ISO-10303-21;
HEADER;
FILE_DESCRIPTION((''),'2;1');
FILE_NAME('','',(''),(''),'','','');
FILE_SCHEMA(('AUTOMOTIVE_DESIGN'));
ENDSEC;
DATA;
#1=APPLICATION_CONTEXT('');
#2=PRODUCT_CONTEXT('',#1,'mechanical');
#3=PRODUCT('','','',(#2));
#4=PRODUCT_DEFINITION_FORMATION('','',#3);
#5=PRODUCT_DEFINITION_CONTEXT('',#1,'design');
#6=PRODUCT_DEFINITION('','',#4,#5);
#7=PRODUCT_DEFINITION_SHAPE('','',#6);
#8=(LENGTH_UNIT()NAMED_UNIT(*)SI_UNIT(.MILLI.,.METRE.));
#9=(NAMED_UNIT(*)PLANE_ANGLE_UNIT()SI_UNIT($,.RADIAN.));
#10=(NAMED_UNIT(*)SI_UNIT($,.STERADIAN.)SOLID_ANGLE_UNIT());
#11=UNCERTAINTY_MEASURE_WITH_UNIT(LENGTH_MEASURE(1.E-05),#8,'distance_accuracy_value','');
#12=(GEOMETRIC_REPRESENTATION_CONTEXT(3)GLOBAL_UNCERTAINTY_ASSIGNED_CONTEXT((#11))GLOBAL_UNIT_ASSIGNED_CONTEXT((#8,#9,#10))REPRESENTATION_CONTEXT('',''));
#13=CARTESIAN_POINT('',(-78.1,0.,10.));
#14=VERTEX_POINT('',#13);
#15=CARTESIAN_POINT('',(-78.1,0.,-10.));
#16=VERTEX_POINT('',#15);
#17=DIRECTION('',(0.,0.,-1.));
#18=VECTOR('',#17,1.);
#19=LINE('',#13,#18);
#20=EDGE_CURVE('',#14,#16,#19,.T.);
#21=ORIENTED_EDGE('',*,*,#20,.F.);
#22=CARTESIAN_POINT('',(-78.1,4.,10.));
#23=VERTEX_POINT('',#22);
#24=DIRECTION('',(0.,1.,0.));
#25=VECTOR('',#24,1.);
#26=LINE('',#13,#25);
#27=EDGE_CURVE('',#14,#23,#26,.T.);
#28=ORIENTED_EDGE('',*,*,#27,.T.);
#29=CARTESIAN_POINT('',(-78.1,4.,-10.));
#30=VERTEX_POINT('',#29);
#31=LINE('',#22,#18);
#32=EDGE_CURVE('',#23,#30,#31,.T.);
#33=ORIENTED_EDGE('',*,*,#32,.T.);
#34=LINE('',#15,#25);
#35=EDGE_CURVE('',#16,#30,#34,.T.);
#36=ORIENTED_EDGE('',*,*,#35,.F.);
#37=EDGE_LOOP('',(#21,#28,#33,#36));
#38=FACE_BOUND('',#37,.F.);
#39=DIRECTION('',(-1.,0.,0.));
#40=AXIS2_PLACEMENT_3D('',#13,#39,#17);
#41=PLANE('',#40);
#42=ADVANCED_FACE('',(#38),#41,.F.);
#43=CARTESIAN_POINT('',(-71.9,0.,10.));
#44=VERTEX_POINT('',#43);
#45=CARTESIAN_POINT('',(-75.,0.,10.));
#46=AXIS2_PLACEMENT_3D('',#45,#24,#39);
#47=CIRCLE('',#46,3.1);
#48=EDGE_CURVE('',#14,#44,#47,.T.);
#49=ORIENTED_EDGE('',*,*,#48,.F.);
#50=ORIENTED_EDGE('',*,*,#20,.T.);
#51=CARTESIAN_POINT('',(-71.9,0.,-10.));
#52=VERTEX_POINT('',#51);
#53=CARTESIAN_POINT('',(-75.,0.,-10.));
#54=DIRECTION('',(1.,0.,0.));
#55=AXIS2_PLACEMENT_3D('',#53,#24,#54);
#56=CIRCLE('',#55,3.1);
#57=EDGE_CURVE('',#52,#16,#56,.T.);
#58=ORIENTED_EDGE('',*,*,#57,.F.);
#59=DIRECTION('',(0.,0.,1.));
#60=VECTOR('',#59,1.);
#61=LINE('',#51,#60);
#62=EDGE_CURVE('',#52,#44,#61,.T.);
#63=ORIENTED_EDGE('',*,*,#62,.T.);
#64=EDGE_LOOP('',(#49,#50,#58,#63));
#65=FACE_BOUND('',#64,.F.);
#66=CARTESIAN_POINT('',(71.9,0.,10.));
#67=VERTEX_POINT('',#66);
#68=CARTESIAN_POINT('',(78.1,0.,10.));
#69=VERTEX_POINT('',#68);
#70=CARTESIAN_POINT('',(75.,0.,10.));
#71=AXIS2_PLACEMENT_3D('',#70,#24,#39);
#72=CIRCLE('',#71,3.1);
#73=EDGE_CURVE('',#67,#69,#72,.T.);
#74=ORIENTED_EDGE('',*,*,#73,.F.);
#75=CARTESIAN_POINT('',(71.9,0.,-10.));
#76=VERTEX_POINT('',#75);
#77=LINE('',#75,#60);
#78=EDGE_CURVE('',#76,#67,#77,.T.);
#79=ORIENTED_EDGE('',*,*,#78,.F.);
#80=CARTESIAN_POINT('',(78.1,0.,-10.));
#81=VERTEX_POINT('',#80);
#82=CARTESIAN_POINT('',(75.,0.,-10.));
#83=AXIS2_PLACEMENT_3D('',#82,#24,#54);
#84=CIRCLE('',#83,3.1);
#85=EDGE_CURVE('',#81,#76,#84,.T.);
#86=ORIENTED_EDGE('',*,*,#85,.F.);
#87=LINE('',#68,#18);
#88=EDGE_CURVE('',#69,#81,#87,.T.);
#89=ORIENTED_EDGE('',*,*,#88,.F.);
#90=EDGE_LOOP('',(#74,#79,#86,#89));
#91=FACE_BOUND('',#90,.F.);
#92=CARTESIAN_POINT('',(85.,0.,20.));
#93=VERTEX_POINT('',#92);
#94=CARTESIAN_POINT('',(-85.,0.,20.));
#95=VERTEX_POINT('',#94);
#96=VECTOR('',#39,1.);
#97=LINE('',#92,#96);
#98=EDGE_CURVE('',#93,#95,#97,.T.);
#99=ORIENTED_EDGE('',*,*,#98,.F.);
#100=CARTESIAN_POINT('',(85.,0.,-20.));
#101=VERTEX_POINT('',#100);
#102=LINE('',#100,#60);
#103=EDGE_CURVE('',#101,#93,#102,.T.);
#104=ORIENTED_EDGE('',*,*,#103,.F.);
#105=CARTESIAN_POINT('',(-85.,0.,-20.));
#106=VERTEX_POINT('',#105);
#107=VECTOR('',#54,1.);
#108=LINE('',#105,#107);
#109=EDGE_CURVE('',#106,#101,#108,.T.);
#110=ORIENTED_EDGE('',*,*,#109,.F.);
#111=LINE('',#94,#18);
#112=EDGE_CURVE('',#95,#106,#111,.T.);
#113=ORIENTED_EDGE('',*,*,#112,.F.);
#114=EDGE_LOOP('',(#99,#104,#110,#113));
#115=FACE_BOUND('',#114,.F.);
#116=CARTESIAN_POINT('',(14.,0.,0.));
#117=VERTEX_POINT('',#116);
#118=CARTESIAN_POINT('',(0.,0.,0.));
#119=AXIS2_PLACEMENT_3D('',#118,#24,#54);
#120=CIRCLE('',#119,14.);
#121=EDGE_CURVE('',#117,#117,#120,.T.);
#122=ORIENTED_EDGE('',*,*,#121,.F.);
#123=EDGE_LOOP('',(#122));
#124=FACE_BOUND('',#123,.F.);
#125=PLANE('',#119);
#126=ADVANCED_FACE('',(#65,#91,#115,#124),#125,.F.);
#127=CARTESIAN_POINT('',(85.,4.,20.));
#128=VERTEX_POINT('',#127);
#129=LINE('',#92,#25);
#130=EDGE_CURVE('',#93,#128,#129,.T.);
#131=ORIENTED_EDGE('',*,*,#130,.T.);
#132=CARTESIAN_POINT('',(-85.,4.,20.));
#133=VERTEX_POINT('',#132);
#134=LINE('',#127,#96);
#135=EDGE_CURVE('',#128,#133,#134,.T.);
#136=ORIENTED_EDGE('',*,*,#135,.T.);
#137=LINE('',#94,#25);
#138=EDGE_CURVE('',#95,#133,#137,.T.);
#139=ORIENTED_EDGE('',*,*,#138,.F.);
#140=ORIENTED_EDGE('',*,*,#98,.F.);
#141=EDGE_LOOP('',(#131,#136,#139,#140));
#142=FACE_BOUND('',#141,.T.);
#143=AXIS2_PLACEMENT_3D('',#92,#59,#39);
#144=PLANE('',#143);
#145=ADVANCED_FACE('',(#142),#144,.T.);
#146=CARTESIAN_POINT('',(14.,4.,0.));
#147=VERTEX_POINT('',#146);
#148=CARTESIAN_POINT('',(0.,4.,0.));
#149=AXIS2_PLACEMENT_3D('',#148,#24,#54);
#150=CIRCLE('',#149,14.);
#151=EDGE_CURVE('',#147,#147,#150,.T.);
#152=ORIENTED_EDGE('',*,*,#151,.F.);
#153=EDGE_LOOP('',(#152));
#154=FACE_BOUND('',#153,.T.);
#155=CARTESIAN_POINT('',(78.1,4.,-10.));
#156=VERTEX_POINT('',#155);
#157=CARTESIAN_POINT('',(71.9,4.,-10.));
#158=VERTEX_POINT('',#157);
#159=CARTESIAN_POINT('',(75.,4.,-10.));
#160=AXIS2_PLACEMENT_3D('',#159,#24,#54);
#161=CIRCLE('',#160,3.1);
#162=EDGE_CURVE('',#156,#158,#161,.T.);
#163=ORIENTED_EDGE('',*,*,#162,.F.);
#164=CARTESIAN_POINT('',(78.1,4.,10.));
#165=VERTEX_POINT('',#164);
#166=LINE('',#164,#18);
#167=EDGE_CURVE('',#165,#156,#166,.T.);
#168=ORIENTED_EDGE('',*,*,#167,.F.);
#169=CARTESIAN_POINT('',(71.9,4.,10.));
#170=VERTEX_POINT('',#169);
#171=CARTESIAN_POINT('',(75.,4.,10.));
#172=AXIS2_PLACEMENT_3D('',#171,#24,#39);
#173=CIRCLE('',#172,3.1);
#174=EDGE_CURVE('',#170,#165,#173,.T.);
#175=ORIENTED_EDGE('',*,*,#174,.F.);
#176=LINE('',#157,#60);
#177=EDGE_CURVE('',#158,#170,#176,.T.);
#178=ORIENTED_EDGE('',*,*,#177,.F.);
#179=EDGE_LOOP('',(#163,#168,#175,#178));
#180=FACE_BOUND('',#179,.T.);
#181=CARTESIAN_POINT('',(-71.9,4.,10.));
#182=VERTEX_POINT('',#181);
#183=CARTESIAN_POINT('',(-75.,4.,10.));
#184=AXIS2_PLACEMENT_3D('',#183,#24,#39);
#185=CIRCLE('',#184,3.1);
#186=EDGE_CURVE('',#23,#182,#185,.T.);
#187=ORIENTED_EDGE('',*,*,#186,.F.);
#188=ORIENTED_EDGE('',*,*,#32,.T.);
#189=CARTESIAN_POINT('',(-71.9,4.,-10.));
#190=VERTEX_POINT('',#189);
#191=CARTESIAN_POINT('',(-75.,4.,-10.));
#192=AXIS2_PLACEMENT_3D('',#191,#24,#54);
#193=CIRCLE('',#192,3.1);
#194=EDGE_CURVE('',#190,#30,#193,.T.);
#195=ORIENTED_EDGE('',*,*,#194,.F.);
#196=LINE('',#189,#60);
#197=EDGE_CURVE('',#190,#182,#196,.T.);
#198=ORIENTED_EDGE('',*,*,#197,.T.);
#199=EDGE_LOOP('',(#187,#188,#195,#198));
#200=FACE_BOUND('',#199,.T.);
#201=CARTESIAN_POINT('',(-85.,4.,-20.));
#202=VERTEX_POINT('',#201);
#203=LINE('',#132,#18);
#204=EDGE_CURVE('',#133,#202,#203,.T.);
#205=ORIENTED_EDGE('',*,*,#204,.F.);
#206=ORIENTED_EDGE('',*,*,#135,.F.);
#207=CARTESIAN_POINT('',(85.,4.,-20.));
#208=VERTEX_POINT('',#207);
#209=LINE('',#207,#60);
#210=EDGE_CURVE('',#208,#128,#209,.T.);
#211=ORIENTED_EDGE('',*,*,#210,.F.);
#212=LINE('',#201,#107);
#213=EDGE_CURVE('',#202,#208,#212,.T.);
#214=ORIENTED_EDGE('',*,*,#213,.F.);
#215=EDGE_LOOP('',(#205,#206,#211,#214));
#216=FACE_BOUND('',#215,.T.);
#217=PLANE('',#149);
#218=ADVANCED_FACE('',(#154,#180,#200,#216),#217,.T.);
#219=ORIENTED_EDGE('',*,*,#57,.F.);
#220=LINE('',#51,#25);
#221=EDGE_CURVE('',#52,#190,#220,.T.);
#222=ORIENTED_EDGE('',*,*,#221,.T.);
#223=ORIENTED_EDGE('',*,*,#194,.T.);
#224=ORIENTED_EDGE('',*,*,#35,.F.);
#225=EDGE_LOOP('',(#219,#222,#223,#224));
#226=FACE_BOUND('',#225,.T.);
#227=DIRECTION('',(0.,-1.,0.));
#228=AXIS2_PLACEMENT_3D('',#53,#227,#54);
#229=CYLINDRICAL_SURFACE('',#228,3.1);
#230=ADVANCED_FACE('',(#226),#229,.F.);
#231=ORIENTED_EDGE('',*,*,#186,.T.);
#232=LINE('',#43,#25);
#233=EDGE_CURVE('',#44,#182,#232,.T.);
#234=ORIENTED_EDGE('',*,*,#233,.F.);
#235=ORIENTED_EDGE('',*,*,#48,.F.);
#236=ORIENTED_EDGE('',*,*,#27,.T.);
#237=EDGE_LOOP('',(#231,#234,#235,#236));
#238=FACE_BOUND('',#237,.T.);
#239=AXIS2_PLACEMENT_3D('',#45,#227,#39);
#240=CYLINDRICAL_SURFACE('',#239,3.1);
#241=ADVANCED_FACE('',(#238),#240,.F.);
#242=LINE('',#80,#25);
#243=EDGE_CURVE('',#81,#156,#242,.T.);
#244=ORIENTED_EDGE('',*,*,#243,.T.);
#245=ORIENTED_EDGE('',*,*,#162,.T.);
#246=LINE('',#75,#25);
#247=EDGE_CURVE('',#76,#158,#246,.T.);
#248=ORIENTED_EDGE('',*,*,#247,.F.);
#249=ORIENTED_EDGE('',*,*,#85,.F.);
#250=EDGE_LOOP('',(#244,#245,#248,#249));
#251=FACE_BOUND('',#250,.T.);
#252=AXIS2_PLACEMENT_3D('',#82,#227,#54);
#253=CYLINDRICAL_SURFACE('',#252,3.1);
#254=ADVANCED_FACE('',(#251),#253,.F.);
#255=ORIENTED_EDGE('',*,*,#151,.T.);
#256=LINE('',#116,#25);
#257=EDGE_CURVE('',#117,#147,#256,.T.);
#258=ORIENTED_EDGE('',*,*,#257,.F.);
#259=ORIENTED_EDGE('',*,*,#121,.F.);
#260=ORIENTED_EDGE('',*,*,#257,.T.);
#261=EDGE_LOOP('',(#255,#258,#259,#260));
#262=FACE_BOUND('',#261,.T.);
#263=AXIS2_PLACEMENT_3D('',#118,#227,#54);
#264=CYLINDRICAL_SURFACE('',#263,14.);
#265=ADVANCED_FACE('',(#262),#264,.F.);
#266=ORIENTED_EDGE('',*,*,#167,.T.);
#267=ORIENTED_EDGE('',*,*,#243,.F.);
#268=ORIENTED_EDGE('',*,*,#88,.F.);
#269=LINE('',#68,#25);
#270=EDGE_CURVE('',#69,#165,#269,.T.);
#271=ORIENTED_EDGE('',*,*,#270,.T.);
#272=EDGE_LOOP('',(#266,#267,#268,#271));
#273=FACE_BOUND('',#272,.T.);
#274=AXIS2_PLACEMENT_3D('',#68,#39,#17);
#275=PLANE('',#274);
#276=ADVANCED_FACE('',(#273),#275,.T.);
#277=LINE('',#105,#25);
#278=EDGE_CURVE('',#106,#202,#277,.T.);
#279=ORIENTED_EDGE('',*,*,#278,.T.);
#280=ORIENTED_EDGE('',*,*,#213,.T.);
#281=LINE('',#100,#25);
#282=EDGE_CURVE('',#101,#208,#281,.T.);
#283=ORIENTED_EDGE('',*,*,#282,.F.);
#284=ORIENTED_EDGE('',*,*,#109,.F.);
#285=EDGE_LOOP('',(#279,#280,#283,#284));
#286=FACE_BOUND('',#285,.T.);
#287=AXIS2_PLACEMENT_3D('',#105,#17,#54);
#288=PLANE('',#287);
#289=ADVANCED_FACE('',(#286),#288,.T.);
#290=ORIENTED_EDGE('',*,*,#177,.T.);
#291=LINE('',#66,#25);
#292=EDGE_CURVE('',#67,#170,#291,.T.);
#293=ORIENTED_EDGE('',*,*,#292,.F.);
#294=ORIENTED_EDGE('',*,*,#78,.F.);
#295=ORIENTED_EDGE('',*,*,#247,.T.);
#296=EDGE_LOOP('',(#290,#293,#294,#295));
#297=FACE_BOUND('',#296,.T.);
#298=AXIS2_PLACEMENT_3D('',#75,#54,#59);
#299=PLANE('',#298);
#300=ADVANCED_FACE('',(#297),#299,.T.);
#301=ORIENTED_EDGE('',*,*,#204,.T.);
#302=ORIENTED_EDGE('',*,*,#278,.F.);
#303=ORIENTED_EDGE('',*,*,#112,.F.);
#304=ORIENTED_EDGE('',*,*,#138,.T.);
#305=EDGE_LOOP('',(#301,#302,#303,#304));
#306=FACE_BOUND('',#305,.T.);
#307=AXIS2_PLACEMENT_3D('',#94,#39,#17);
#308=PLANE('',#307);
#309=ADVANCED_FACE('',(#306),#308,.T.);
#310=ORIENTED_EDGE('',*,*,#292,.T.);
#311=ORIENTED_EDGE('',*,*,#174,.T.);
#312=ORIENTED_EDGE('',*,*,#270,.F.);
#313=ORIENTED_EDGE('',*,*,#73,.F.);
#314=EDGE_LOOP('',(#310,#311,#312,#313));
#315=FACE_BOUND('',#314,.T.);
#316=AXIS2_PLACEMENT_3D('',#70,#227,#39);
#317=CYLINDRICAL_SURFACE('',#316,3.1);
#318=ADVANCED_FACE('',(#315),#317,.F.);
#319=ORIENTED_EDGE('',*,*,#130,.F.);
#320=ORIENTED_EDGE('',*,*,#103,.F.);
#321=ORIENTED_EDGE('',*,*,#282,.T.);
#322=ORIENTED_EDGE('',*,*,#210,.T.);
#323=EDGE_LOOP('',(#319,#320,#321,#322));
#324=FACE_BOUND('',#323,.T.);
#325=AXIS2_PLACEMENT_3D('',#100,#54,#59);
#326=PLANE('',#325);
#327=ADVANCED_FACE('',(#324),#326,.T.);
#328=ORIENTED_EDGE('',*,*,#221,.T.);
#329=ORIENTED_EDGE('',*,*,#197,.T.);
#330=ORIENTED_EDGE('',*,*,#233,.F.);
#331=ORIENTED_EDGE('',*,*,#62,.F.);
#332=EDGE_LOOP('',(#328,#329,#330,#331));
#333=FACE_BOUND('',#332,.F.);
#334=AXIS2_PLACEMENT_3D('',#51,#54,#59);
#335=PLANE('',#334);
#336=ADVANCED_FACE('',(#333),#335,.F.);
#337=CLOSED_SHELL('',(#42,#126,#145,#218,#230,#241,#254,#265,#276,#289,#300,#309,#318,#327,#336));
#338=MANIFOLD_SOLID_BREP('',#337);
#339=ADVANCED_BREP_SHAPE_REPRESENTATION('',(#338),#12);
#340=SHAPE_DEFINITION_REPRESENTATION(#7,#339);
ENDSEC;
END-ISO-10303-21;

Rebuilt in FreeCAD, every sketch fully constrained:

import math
import FreeCAD as App
import Part
import Sketcher
from FreeCAD import Vector
Q = App.Units.Quantity


def add_polygon(sketch, points):
    """Adds a closed chain of lines whose ends are joined by coincident constraints."""
    first, n = sketch.GeometryCount, len(points)
    for a, b in zip(points, points[1:] + points[:1]):
        sketch.addGeometry(Part.LineSegment(App.Vector(*a, 0), App.Vector(*b, 0)), False)
    for i in range(n):
        sketch.addConstraint(Sketcher.Constraint("Coincident", first + i, 2, first + (i + 1) % n, 1))

doc = App.newDocument("Part")
body = doc.addObject("PartDesign::Body", "Body")

sketch1 = body.newObject("Sketcher::SketchObject", "Sketch")
sketch1.AttachmentSupport = (doc.getObject("XZ_Plane"), [""])
sketch1.MapMode = "FlatFace"
add_polygon(sketch1, [(-85, 20), (85, 20), (85, -20), (-85, -20)])
sketch1.addGeometry(Part.ArcOfCircle(Part.Circle(Vector(-75, -10, 0), Vector(0, 0, 1), 3.1), math.radians(180), math.radians(360)), False)
sketch1.addGeometry(Part.LineSegment(Vector(-71.9, -10, 0), Vector(-71.9, 10, 0)), False)
sketch1.addGeometry(Part.ArcOfCircle(Part.Circle(Vector(-75, 10, 0), Vector(0, 0, 1), 3.1), math.radians(0), math.radians(180)), False)
sketch1.addGeometry(Part.LineSegment(Vector(-78.1, 10, 0), Vector(-78.1, -10, 0)), False)
sketch1.addGeometry(Part.Circle(Vector(0, 0, 0), Vector(0, 0, 1), 14), False)
sketch1.addGeometry(Part.LineSegment(Vector(71.9, 10, 0), Vector(71.9, -10, 0)), False)
sketch1.addGeometry(Part.ArcOfCircle(Part.Circle(Vector(75, -10, 0), Vector(0, 0, 1), 3.1), math.radians(180), math.radians(360)), False)
sketch1.addGeometry(Part.LineSegment(Vector(78.1, -10, 0), Vector(78.1, 10, 0)), False)
sketch1.addGeometry(Part.ArcOfCircle(Part.Circle(Vector(75, 10, 0), Vector(0, 0, 1), 3.1), math.radians(0), math.radians(180)), False)
sketch1.addConstraint([
    Sketcher.Constraint("Tangent", 4, 2, 5, 1),
    Sketcher.Constraint("Tangent", 5, 2, 6, 1),
    Sketcher.Constraint("Tangent", 6, 2, 7, 1),
    Sketcher.Constraint("Tangent", 7, 2, 4, 1),
    Sketcher.Constraint("Tangent", 9, 2, 10, 1),
    Sketcher.Constraint("Tangent", 10, 2, 11, 1),
    Sketcher.Constraint("Tangent", 11, 2, 12, 1),
    Sketcher.Constraint("Tangent", 12, 2, 9, 1),
    Sketcher.Constraint("Horizontal", 0),
    Sketcher.Constraint("Vertical", 1),
    Sketcher.Constraint("Horizontal", 2),
    Sketcher.Constraint("Vertical", 3),
    Sketcher.Constraint("Vertical", 5),
    Sketcher.Constraint("Vertical", 7),
    Sketcher.Constraint("Vertical", 9),
    Sketcher.Constraint("Vertical", 11),
    Sketcher.Constraint("Coincident", 8, 3, -1, 1),
    Sketcher.Constraint("Equal", 6, 10),
    Sketcher.Constraint("Symmetric", 6, 3, 10, 3, -1, 1),
    Sketcher.Constraint("Symmetric", 0, 2, 2, 2, -1, 1),
    Sketcher.Constraint("Horizontal", 4, 3, 10, 3),
    Sketcher.Constraint("Horizontal", 6, 3, 12, 3),
    Sketcher.Constraint("Diameter", 8, Q("28 mm")),
    Sketcher.Constraint("Radius", 4, Q("3.1 mm")),
    Sketcher.Constraint("DistanceX", 0, 1, 0, 2, Q("170 mm")),
    Sketcher.Constraint("DistanceY", 1, 2, 1, 1, Q("40 mm")),
    Sketcher.Constraint("DistanceY", 5, 1, 5, 2, Q("20 mm")),
    Sketcher.Constraint("DistanceX", 4, 3, 10, 3, Q("150 mm")),
])
pad1 = body.newObject("PartDesign::Pad", "Pad")
pad1.Profile = sketch1
pad1.Length = 4
pad1.Reversed = True

doc.recompute()
